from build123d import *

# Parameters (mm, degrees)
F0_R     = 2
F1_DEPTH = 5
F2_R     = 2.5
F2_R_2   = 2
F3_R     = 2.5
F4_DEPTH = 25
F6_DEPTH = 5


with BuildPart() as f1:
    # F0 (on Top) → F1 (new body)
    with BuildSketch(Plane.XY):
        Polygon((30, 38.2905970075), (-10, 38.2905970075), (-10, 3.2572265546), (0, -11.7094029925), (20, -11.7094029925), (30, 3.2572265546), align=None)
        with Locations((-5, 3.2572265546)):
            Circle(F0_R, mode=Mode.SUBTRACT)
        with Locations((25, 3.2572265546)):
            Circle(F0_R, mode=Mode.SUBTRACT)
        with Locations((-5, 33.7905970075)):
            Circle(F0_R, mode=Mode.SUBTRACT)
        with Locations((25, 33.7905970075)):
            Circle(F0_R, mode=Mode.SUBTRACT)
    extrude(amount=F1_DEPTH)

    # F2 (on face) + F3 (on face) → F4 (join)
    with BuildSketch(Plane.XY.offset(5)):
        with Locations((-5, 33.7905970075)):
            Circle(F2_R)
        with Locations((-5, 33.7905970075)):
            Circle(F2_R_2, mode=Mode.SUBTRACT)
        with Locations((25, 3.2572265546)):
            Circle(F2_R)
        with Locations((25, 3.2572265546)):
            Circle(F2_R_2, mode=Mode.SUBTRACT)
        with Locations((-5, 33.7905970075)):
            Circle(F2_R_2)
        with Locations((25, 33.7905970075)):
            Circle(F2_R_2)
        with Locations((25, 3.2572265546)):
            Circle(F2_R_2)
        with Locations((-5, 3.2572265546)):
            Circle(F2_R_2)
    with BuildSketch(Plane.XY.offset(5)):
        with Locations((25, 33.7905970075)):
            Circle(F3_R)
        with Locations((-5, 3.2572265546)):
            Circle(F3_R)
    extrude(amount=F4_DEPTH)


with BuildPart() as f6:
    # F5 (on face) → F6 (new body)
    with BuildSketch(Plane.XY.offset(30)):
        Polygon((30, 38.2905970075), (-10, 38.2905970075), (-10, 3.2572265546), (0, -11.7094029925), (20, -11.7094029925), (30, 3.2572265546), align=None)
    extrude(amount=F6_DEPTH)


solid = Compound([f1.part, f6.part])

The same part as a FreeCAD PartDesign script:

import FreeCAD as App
import Part
import Sketcher
Q = App.Units.Quantity

doc = App.newDocument("Part")
body = doc.addObject("PartDesign::Body", "Body")

sketch1 = body.newObject("Sketcher::SketchObject", "Sketch")
sketch1.AttachmentSupport = (doc.getObject("XY_Plane"), [""])
sketch1.MapMode = "FlatFace"
sketch1.addGeometry([
    Part.LineSegment(App.Vector(30, 38.3, 0), App.Vector(-10, 38.3, 0)),
    Part.LineSegment(App.Vector(-10, 38.3, 0), App.Vector(-10, 3.3, 0)),
    Part.LineSegment(App.Vector(-10, 3.3, 0), App.Vector(0, -11.7, 0)),
    Part.LineSegment(App.Vector(0, -11.7, 0), App.Vector(20, -11.7, 0)),
    Part.LineSegment(App.Vector(20, -11.7, 0), App.Vector(30, 3.3, 0)),
    Part.LineSegment(App.Vector(30, 3.3, 0), App.Vector(30, 38.3, 0)),
    Part.Circle(App.Vector(-5, 3.3, 0), App.Vector(0, 0, 1), 2),
    Part.Circle(App.Vector(25, 3.3, 0), App.Vector(0, 0, 1), 2),
    Part.Circle(App.Vector(-5, 33.8, 0), App.Vector(0, 0, 1), 2),
    Part.Circle(App.Vector(25, 33.8, 0), App.Vector(0, 0, 1), 2),
], False)
sketch1.addConstraint([
    Sketcher.Constraint("Coincident", 0, 2, 1, 1),
    Sketcher.Constraint("Coincident", 1, 2, 2, 1),
    Sketcher.Constraint("Coincident", 2, 2, 3, 1),
    Sketcher.Constraint("Coincident", 3, 2, 4, 1),
    Sketcher.Constraint("Coincident", 4, 2, 5, 1),
    Sketcher.Constraint("Coincident", 5, 2, 0, 1),
    Sketcher.Constraint("Horizontal", 0),
    Sketcher.Constraint("Vertical", 1),
    Sketcher.Constraint("Horizontal", 3),
    Sketcher.Constraint("Vertical", 5),
    Sketcher.Constraint("Equal", 6, 7),
    Sketcher.Constraint("Equal", 7, 8),
    Sketcher.Constraint("Equal", 8, 9),
    Sketcher.Constraint("PointOnObject", 2, 2, -2),
    Sketcher.Constraint("Horizontal", 6, 3, 7, 3),
    Sketcher.Constraint("Horizontal", 8, 3, 9, 3),
    Sketcher.Constraint("Horizontal", 7, 3, 1, 2),
    Sketcher.Constraint("Horizontal", 1, 2, 4, 2),
    Sketcher.Constraint("Vertical", 6, 3, 8, 3),
    Sketcher.Constraint("Vertical", 7, 3, 9, 3),
    Sketcher.Constraint("Equal", 2, 4),
    Sketcher.Constraint("Diameter", 6, Q("4 mm")),
    Sketcher.Constraint("DistanceX", 0, 2, 0, 1, Q("40 mm")),
    Sketcher.Constraint("DistanceX", 3, 1, 3, 2, Q("20 mm")),
    Sketcher.Constraint("Distance", 2, Q("18 mm")),
    Sketcher.Constraint("DistanceX", 6, 3, -1, 1, Q("5 mm")),
    Sketcher.Constraint("DistanceX", -1, 1, 7, 3, Q("25 mm")),
    Sketcher.Constraint("DistanceY", 2, 2, 0, 2, Q("50 mm")),
    Sketcher.Constraint("DistanceY", 8, 3, 0, 2, Q("4.5 mm")),
    Sketcher.Constraint("DistanceY", -1, 1, 6, 3, Q("3.257227 mm")),
])
pad1 = body.newObject("PartDesign::Pad", "Pad")
pad1.Profile = sketch1
pad1.Length = 5

sketch2 = body.newObject("Sketcher::SketchObject", "Sketch001")
sketch2.AttachmentSupport = (doc.getObject("XY_Plane"), [""])
sketch2.MapMode = "FlatFace"
sketch2.AttachmentOffset = App.Placement(App.Vector(0, 0, 5), App.Rotation())
sketch2.addGeometry([
    Part.Circle(App.Vector(-5, 33.8, 0), App.Vector(0, 0, 1), 2.5),
    Part.Circle(App.Vector(25, 3.3, 0), App.Vector(0, 0, 1), 2.5),
    Part.Circle(App.Vector(25, 33.8, 0), App.Vector(0, 0, 1), 2.5),
    Part.Circle(App.Vector(-5, 3.3, 0), App.Vector(0, 0, 1), 2.5),
], False)
sketch2.addConstraint([
    Sketcher.Constraint("Equal", 0, 1),
    Sketcher.Constraint("Equal", 1, 2),
    Sketcher.Constraint("Equal", 2, 3),
    Sketcher.Constraint("Horizontal", 0, 3, 2, 3),
    Sketcher.Constraint("Horizontal", 1, 3, 3, 3),
    Sketcher.Constraint("Vertical", 1, 3, 2, 3),
    Sketcher.Constraint("Vertical", 0, 3, 3, 3),
    Sketcher.Constraint("Diameter", 0, Q("5 mm")),
    Sketcher.Constraint("DistanceX", 0, 3, -1, 1, Q("5 mm")),
    Sketcher.Constraint("DistanceX", -1, 1, 1, 3, Q("25 mm")),
    Sketcher.Constraint("DistanceY", 1, 3, 0, 3, Q("30.53337 mm")),
    Sketcher.Constraint("DistanceY", -1, 1, 0, 3, Q("33.790597 mm")),
])
pad2 = body.newObject("PartDesign::Pad", "Pad001")
pad2.Profile = sketch2
pad2.Length = 25
body2 = doc.addObject("PartDesign::Body", "Body001")

sketch3 = body2.newObject("Sketcher::SketchObject", "Sketch002")
sketch3.AttachmentSupport = (doc.getObject("XY_Plane001"), [""])
sketch3.MapMode = "FlatFace"
sketch3.AttachmentOffset = App.Placement(App.Vector(0, 0, 30), App.Rotation())
sketch3.addGeometry([
    Part.LineSegment(App.Vector(30, 38, 0), App.Vector(-10, 38, 0)),
    Part.LineSegment(App.Vector(-10, 38, 0), App.Vector(-10, 3, 0)),
    Part.LineSegment(App.Vector(-10, 3, 0), App.Vector(0, -12, 0)),
    Part.LineSegment(App.Vector(0, -12, 0), App.Vector(20, -12, 0)),
    Part.LineSegment(App.Vector(20, -12, 0), App.Vector(30, 3, 0)),
    Part.LineSegment(App.Vector(30, 3, 0), App.Vector(30, 38, 0)),
], False)
sketch3.addConstraint([
    Sketcher.Constraint("Coincident", 0, 2, 1, 1),
    Sketcher.Constraint("Coincident", 1, 2, 2, 1),
    Sketcher.Constraint("Coincident", 2, 2, 3, 1),
    Sketcher.Constraint("Coincident", 3, 2, 4, 1),
    Sketcher.Constraint("Coincident", 4, 2, 5, 1),
    Sketcher.Constraint("Coincident", 5, 2, 0, 1),
    Sketcher.Constraint("Horizontal", 0),
    Sketcher.Constraint("Vertical", 1),
    Sketcher.Constraint("Horizontal", 3),
    Sketcher.Constraint("Vertical", 5),
    Sketcher.Constraint("PointOnObject", 2, 2, -2),
    Sketcher.Constraint("Horizontal", 1, 2, 4, 2),
    Sketcher.Constraint("Equal", 2, 4),
    Sketcher.Constraint("DistanceX", 0, 2, 0, 1, Q("40 mm")),
    Sketcher.Constraint("DistanceX", 3, 1, 3, 2, Q("20 mm")),
    Sketcher.Constraint("Distance", 2, Q("18 mm")),
    Sketcher.Constraint("DistanceY", 2, 2, 0, 2, Q("50 mm")),
    Sketcher.Constraint("DistanceY", -1, 1, 0, 2, Q("38.290597 mm")),
])
pad3 = body2.newObject("PartDesign::Pad", "Pad002")
pad3.Profile = sketch3
pad3.Length = 5

doc.recompute()
